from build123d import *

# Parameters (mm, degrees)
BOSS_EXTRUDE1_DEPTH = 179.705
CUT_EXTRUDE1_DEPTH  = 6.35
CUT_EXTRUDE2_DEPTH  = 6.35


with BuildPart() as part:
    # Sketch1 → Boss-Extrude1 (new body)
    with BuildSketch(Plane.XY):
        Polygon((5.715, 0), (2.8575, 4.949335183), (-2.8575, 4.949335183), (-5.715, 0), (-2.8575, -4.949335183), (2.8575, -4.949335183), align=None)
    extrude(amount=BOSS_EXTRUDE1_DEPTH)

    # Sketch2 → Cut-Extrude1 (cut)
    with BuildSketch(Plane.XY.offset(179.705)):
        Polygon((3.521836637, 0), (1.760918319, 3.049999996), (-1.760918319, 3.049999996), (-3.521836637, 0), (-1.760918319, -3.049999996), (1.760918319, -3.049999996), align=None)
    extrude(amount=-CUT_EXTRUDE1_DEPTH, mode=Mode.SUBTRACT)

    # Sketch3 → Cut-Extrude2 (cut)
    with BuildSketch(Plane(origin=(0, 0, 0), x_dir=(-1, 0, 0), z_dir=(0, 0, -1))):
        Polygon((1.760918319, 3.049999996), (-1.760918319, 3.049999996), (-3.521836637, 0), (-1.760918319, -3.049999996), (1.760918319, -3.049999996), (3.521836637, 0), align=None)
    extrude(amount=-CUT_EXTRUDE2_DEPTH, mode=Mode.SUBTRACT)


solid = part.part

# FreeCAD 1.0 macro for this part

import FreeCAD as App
import Part
import Sketcher
from FreeCAD import Vector
Q = App.Units.Quantity

doc = App.newDocument("Part")
body = doc.addObject("PartDesign::Body", "Body")

sketch1 = body.newObject("Sketcher::SketchObject", "Sketch")
sketch1.AttachmentSupport = (doc.getObject("XY_Plane"), [""])
sketch1.MapMode = "FlatFace"
sketch1.addGeometry(Part.LineSegment(Vector(5.715, 0, 0), Vector(2.8575, 4.949335, 0)), False)
sketch1.addGeometry(Part.LineSegment(Vector(2.8575, 4.949335, 0), Vector(-2.8575, 4.949335, 0)), False)
sketch1.addGeometry(Part.LineSegment(Vector(-2.8575, 4.949335, 0), Vector(-5.715, 0, 0)), False)
sketch1.addGeometry(Part.LineSegment(Vector(-5.715, 0, 0), Vector(-2.8575, -4.949335, 0)), False)
sketch1.addGeometry(Part.LineSegment(Vector(-2.8575, -4.949335, 0), Vector(2.8575, -4.949335, 0)), False)
sketch1.addGeometry(Part.LineSegment(Vector(2.8575, -4.949335, 0), Vector(5.715, 0, 0)), False)
sketch1.addConstraint(Sketcher.Constraint("Coincident", 0, 2, 1, 1))
sketch1.addConstraint(Sketcher.Constraint("Coincident", 1, 2, 2, 1))
sketch1.addConstraint(Sketcher.Constraint("Coincident", 2, 2, 3, 1))
sketch1.addConstraint(Sketcher.Constraint("Coincident", 3, 2, 4, 1))
sketch1.addConstraint(Sketcher.Constraint("Coincident", 4, 2, 5, 1))
sketch1.addConstraint(Sketcher.Constraint("Coincident", 5, 2, 0, 1))
sketch1.addConstraint(Sketcher.Constraint("Horizontal", 1))
sketch1.addConstraint(Sketcher.Constraint("Horizontal", 4))
sketch1.addConstraint(Sketcher.Constraint("Symmetric", 0, 2, 3, 2, -1, 1))
sketch1.addConstraint(Sketcher.Constraint("Symmetric", 2, 2, 5, 2, -1, 1))
sketch1.addConstraint(Sketcher.Constraint("PointOnObject", 2, 2, -1))
sketch1.addConstraint(Sketcher.Constraint("Parallel", 2, 5))
sketch1.addConstraint(Sketcher.Constraint("Vertical", 1, 2, 3, 2))
sketch1.addConstraint(Sketcher.Constraint("Angle", 0, Q("120 deg")))
sketch1.addConstraint(Sketcher.Constraint("DistanceX", 1, 2, 1, 1, Q("0.225 in")))
sketch1.addConstraint(Sketcher.Constraint("DistanceX", 2, 2, 5, 2, Q("0.45 in")))
pad1 = body.newObject("PartDesign::Pad", "Pad")
pad1.Profile = sketch1
pad1.Length = Q("7.075 in")

sketch2 = body.newObject("Sketcher::SketchObject", "Sketch001")
sketch2.AttachmentSupport = (doc.getObject("XY_Plane"), [""])
sketch2.MapMode = "FlatFace"
sketch2.AttachmentOffset = App.Placement(Vector(0, 0, 7.075 * 25.4), App.Rotation())
sketch2.addGeometry(Part.LineSegment(Vector(3.521837, 0, 0), Vector(1.760918, 3.05, 0)), False)
sketch2.addGeometry(Part.LineSegment(Vector(1.760918, 3.05, 0), Vector(-1.760918, 3.05, 0)), False)
sketch2.addGeometry(Part.LineSegment(Vector(-1.760918, 3.05, 0), Vector(-3.521837, 0, 0)), False)
sketch2.addGeometry(Part.LineSegment(Vector(-3.521837, 0, 0), Vector(-1.760918, -3.05, 0)), False)
sketch2.addGeometry(Part.LineSegment(Vector(-1.760918, -3.05, 0), Vector(1.760918, -3.05, 0)), False)
sketch2.addGeometry(Part.LineSegment(Vector(1.760918, -3.05, 0), Vector(3.521837, 0, 0)), False)
sketch2.addConstraint(Sketcher.Constraint("Coincident", 0, 2, 1, 1))
sketch2.addConstraint(Sketcher.Constraint("Coincident", 1, 2, 2, 1))
sketch2.addConstraint(Sketcher.Constraint("Coincident", 2, 2, 3, 1))
sketch2.addConstraint(Sketcher.Constraint("Coincident", 3, 2, 4, 1))
sketch2.addConstraint(Sketcher.Constraint("Coincident", 4, 2, 5, 1))
sketch2.addConstraint(Sketcher.Constraint("Coincident", 5, 2, 0, 1))
sketch2.addConstraint(Sketcher.Constraint("Horizontal", 1))
sketch2.addConstraint(Sketcher.Constraint("Horizontal", 4))
sketch2.addConstraint(Sketcher.Constraint("Symmetric", 0, 2, 3, 2, -1, 1))
sketch2.addConstraint(Sketcher.Constraint("Symmetric", 2, 2, 5, 2, -1, 1))
sketch2.addConstraint(Sketcher.Constraint("PointOnObject", 2, 2, -1))
sketch2.addConstraint(Sketcher.Constraint("Parallel", 2, 5))
sketch2.addConstraint(Sketcher.Constraint("Vertical", 1, 2, 3, 2))
sketch2.addConstraint(Sketcher.Constraint("Angle", 0, Q("120 deg")))
sketch2.addConstraint(Sketcher.Constraint("DistanceY", -1, 1, 0, 2, 3.05))
sketch2.addConstraint(Sketcher.Constraint("DistanceX", 1, 2, 1, 1, 3.521837))
pocket1 = body.newObject("PartDesign::Pocket", "Pocket")
pocket1.Profile = sketch2
pocket1.Length = Q("0.25 in")

sketch3 = body.newObject("Sketcher::SketchObject", "Sketch002")
sketch3.AttachmentSupport = (doc.getObject("XY_Plane"), [""])
sketch3.MapMode = "FlatFace"
sketch3.addGeometry(Part.LineSegment(Vector(-1.760918, 3.05, 0), Vector(1.760918, 3.05, 0)), False)
sketch3.addGeometry(Part.LineSegment(Vector(1.760918, 3.05, 0), Vector(3.521837, 0, 0)), False)
sketch3.addGeometry(Part.LineSegment(Vector(3.521837, 0, 0), Vector(1.760918, -3.05, 0)), False)
sketch3.addGeometry(Part.LineSegment(Vector(1.760918, -3.05, 0), Vector(-1.760918, -3.05, 0)), False)
sketch3.addGeometry(Part.LineSegment(Vector(-1.760918, -3.05, 0), Vector(-3.521837, 0, 0)), False)
sketch3.addGeometry(Part.LineSegment(Vector(-3.521837, 0, 0), Vector(-1.760918, 3.05, 0)), False)
sketch3.addConstraint(Sketcher.Constraint("Coincident", 0, 2, 1, 1))
sketch3.addConstraint(Sketcher.Constraint("Coincident", 1, 2, 2, 1))
sketch3.addConstraint(Sketcher.Constraint("Coincident", 2, 2, 3, 1))
sketch3.addConstraint(Sketcher.Constraint("Coincident", 3, 2, 4, 1))
sketch3.addConstraint(Sketcher.Constraint("Coincident", 4, 2, 5, 1))
sketch3.addConstraint(Sketcher.Constraint("Coincident", 5, 2, 0, 1))
sketch3.addConstraint(Sketcher.Constraint("Horizontal", 0))
sketch3.addConstraint(Sketcher.Constraint("Horizontal", 3))
sketch3.addConstraint(Sketcher.Constraint("Symmetric", 0, 2, 3, 2, -1, 1))
sketch3.addConstraint(Sketcher.Constraint("Symmetric", 1, 2, 4, 2, -1, 1))
sketch3.addConstraint(Sketcher.Constraint("PointOnObject", 1, 2, -1))
sketch3.addConstraint(Sketcher.Constraint("Parallel", 2, 5))
sketch3.addConstraint(Sketcher.Constraint("Vertical", 0, 2, 2, 2))
sketch3.addConstraint(Sketcher.Constraint("Angle", 1, Q("-60 deg")))
sketch3.addConstraint(Sketcher.Constraint("DistanceY", -1, 1, 0, 2, 3.05))
sketch3.addConstraint(Sketcher.Constraint("DistanceX", 0, 1, 0, 2, 3.521837))
pocket2 = body.newObject("PartDesign::Pocket", "Pocket001")
pocket2.Profile = sketch3
pocket2.Length = Q("0.25 in")
pocket2.Reversed = True

doc.recompute()
